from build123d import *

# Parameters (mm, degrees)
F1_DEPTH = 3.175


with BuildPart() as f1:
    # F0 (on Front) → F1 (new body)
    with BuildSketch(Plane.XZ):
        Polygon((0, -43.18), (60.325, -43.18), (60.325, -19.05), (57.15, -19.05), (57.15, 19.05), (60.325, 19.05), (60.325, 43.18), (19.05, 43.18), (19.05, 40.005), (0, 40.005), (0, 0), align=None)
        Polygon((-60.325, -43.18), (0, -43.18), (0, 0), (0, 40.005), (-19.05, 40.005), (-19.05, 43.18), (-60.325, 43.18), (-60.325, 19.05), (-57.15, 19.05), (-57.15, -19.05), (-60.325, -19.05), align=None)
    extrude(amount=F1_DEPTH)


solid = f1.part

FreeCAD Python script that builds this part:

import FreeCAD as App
import Part
import Sketcher
Q = App.Units.Quantity

doc = App.newDocument("Part")
params = doc.addObject("Spreadsheet::Sheet", "Params")
for row, (alias, value) in enumerate([
    ("sketch1_width", "1.5 in"),
    ("sketch1_width2", "4.75 in"),
    ("sketch1_height", "0.95 in"),
    ("pad1_length", "0.125 in"),
], start=1):
    params.set(f"A{row}", alias)
    params.set(f"B{row}", "=" + value)
    params.setAlias(f"B{row}", alias)

body = doc.addObject("PartDesign::Body", "Body")

# Sketch on XZ plane
sketch1 = body.newObject("Sketcher::SketchObject", "Sketch")
sketch1.AttachmentSupport = (doc.getObject("XZ_Plane"), [""])
sketch1.MapMode = "FlatFace"
sketch1.addGeometry([
    Part.LineSegment(App.Vector(60.3, -43.2, 0), App.Vector(60.3, -19.1, 0)),  # 0
    Part.LineSegment(App.Vector(60.3, -19.1, 0), App.Vector(57.1, -19.1, 0)),  # 1
    Part.LineSegment(App.Vector(57.1, -19.1, 0), App.Vector(57.1, 19.1, 0)),  # 2
    Part.LineSegment(App.Vector(57.1, 19.1, 0), App.Vector(60.3, 19.1, 0)),  # 3
    Part.LineSegment(App.Vector(60.3, 19.1, 0), App.Vector(60.3, 43.2, 0)),  # 4
    Part.LineSegment(App.Vector(60.3, 43.2, 0), App.Vector(19.1, 43.2, 0)),  # 5
    Part.LineSegment(App.Vector(19.1, 43.2, 0), App.Vector(19.1, 40, 0)),  # 6
    Part.LineSegment(App.Vector(19.1, 40, 0), App.Vector(-19.1, 40, 0)),  # 7
    Part.LineSegment(App.Vector(-19.1, 40, 0), App.Vector(-19.1, 43.2, 0)),  # 8
    Part.LineSegment(App.Vector(-19.1, 43.2, 0), App.Vector(-60.3, 43.2, 0)),  # 9
    Part.LineSegment(App.Vector(-60.3, 43.2, 0), App.Vector(-60.3, 19.1, 0)),  # 10
    Part.LineSegment(App.Vector(-60.3, 19.1, 0), App.Vector(-57.1, 19.1, 0)),  # 11
    Part.LineSegment(App.Vector(-57.1, 19.1, 0), App.Vector(-57.1, -19.1, 0)),  # 12
    Part.LineSegment(App.Vector(-57.1, -19.1, 0), App.Vector(-60.3, -19.1, 0)),  # 13
    Part.LineSegment(App.Vector(-60.3, -19.1, 0), App.Vector(-60.3, -43.2, 0)),  # 14
    Part.LineSegment(App.Vector(-60.3, -43.2, 0), App.Vector(60.3, -43.2, 0)),  # 15
], False)
sketch1.addConstraint([
    Sketcher.Constraint("Coincident", 0, 2, 1, 1),
    Sketcher.Constraint("Coincident", 1, 2, 2, 1),
    Sketcher.Constraint("Coincident", 2, 2, 3, 1),
    Sketcher.Constraint("Coincident", 3, 2, 4, 1),
    Sketcher.Constraint("Coincident", 4, 2, 5, 1),
    Sketcher.Constraint("Coincident", 5, 2, 6, 1),
    Sketcher.Constraint("Coincident", 6, 2, 7, 1),
    Sketcher.Constraint("Coincident", 7, 2, 8, 1),
    Sketcher.Constraint("Coincident", 8, 2, 9, 1),
    Sketcher.Constraint("Coincident", 9, 2, 10, 1),
    Sketcher.Constraint("Coincident", 10, 2, 11, 1),
    Sketcher.Constraint("Coincident", 11, 2, 12, 1),
    Sketcher.Constraint("Coincident", 12, 2, 13, 1),
    Sketcher.Constraint("Coincident", 13, 2, 14, 1),
    Sketcher.Constraint("Coincident", 14, 2, 15, 1),
    Sketcher.Constraint("Coincident", 15, 2, 0, 1),
    Sketcher.Constraint("Vertical", 0),
    Sketcher.Constraint("Horizontal", 1),
    Sketcher.Constraint("Vertical", 2),
    Sketcher.Constraint("Horizontal", 3),
    Sketcher.Constraint("Vertical", 4),
    Sketcher.Constraint("Horizontal", 5),
    Sketcher.Constraint("Vertical", 6),
    Sketcher.Constraint("Horizontal", 7),
    Sketcher.Constraint("Vertical", 8),
    Sketcher.Constraint("Horizontal", 9),
    Sketcher.Constraint("Vertical", 10),
    Sketcher.Constraint("Horizontal", 11),
    Sketcher.Constraint("Vertical", 12),
    Sketcher.Constraint("Horizontal", 13),
    Sketcher.Constraint("Vertical", 14),
    Sketcher.Constraint("Horizontal", 15),
    Sketcher.Constraint("Symmetric", 0, 2, 10, 2, -1, 1),
    Sketcher.Constraint("Symmetric", 2, 2, 12, 2, -1, 1),
    Sketcher.Constraint("Symmetric", 4, 2, 14, 2, -1, 1),
    Sketcher.Constraint("Symmetric", 5, 2, 8, 2, -2),
    Sketcher.Constraint("Symmetric", 3, 2, 10, 2, -2),
    Sketcher.Constraint("Equal", 7, 2),
    Sketcher.Constraint("Equal", 13, 6),
    Sketcher.Constraint("DistanceX", 7, 2, 7, 1, Q("1.5 in")),
    Sketcher.Constraint("DistanceX", 7, 2, 2, 2, Q("3 in")),
    Sketcher.Constraint("DistanceX", 15, 1, 15, 2, Q("4.75 in")),
    Sketcher.Constraint("DistanceY", 0, 1, 0, 2, Q("0.95 in")),
])
sketch1.setExpression("Constraints[39]", "Params.sketch1_width")
sketch1.setExpression("Constraints[41]", "Params.sketch1_width2")
sketch1.setExpression("Constraints[42]", "Params.sketch1_height")
pad1 = body.newObject("PartDesign::Pad", "Pad")
pad1.Profile = sketch1
pad1.setExpression("Length", "Params.pad1_length")

doc.recompute()
